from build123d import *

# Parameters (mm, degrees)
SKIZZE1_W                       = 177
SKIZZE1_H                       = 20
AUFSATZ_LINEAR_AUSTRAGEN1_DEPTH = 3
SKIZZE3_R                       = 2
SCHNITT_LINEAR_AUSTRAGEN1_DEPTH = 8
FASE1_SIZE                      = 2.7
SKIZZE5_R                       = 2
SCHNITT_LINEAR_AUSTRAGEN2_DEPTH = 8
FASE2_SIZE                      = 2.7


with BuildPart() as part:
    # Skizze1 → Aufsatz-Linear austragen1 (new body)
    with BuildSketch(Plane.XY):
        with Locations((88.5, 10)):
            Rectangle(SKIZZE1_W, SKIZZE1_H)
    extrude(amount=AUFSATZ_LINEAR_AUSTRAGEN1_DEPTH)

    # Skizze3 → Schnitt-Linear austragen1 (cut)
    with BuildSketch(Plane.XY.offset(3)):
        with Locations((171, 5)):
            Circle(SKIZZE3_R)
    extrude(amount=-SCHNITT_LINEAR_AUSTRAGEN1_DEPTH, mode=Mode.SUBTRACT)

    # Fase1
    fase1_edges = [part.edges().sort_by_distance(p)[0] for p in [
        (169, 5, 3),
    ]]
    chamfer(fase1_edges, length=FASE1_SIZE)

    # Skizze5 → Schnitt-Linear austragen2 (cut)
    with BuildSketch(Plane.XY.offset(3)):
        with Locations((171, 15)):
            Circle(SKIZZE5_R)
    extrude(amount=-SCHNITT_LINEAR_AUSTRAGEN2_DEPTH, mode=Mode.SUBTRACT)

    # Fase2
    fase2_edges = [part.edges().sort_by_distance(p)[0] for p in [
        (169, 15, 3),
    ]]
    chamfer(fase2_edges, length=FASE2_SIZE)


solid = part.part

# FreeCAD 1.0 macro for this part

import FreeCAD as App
import Part
import Sketcher
Q = App.Units.Quantity


def edges_at(feature, points):
    """Names of the edges that pass closest to the given points."""
    edges = feature.Shape.Edges
    near = lambda p: min(range(len(edges)), key=lambda i: edges[i].distToShape(Part.Vertex(*p))[0])
    return sorted({f"Edge{near(p) + 1}" for p in points})

doc = App.newDocument("Part")
body = doc.addObject("PartDesign::Body", "Body")

sketch1 = doc.addObject("Sketcher::SketchObject", "Sketch")
body.addObject(sketch1)
sketch1.AttachmentSupport = (doc.XY_Plane, [""])
sketch1.MapMode = "FlatFace"
sketch1.addGeometry([
    Part.LineSegment(App.Vector(0, 20, 0), App.Vector(0, 0, 0)),
    Part.LineSegment(App.Vector(0, 0, 0), App.Vector(177, 0, 0)),
    Part.LineSegment(App.Vector(177, 0, 0), App.Vector(177, 20, 0)),
    Part.LineSegment(App.Vector(177, 20, 0), App.Vector(0, 20, 0)),
], False)
sketch1.addConstraint([
    Sketcher.Constraint("Coincident", 0, 2, 1, 1),
    Sketcher.Constraint("Coincident", 1, 2, 2, 1),
    Sketcher.Constraint("Coincident", 2, 2, 3, 1),
    Sketcher.Constraint("Coincident", 3, 2, 0, 1),
    Sketcher.Constraint("Vertical", 0),
    Sketcher.Constraint("Horizontal", 1),
    Sketcher.Constraint("Vertical", 2),
    Sketcher.Constraint("Horizontal", 3),
    Sketcher.Constraint("Coincident", 0, 2, -1, 1),
    Sketcher.Constraint("DistanceX", 1, 1, 1, 2, Q("177 mm")),
    Sketcher.Constraint("DistanceY", 0, 2, 0, 1, Q("20 mm")),
])
pad1 = doc.addObject("PartDesign::Pad", "Pad")
body.addObject(pad1)
pad1.Profile = sketch1
pad1.Length = 3

sketch2 = doc.addObject("Sketcher::SketchObject", "Sketch001")
body.addObject(sketch2)
sketch2.AttachmentSupport = (doc.XY_Plane, [""])
sketch2.MapMode = "FlatFace"
sketch2.AttachmentOffset = App.Placement(App.Vector(0, 0, 3), App.Rotation())
sketch2.addGeometry(Part.Circle(App.Vector(171, 5, 0), App.Vector(0, 0, 1), 2), False)
sketch2.addConstraint([
    Sketcher.Constraint("Diameter", 0, Q("4 mm")),
    Sketcher.Constraint("DistanceX", -1, 1, 0, 3, Q("171 mm")),
    Sketcher.Constraint("DistanceY", -1, 1, 0, 3, Q("5 mm")),
])
pocket1 = doc.addObject("PartDesign::Pocket", "Pocket")
body.addObject(pocket1)
pocket1.Profile = sketch2
pocket1.Length = 8
doc.recompute()

chamfer = doc.addObject("PartDesign::Chamfer", "Chamfer")
body.addObject(chamfer)
chamfer.Base = (pocket1, edges_at(pocket1, [(169, 5, 3)]))
chamfer.Size = 2.7

sketch3 = doc.addObject("Sketcher::SketchObject", "Sketch002")
body.addObject(sketch3)
sketch3.AttachmentSupport = (doc.XY_Plane, [""])
sketch3.MapMode = "FlatFace"
sketch3.AttachmentOffset = App.Placement(App.Vector(0, 0, 3), App.Rotation())
sketch3.addGeometry(Part.Circle(App.Vector(171, 15, 0), App.Vector(0, 0, 1), 2), False)
sketch3.addConstraint([
    Sketcher.Constraint("Diameter", 0, Q("4 mm")),
    Sketcher.Constraint("DistanceX", -1, 1, 0, 3, Q("171 mm")),
    Sketcher.Constraint("DistanceY", -1, 1, 0, 3, Q("15 mm")),
])
pocket2 = doc.addObject("PartDesign::Pocket", "Pocket001")
body.addObject(pocket2)
pocket2.Profile = sketch3
pocket2.Length = 8
doc.recompute()

chamfer2 = doc.addObject("PartDesign::Chamfer", "Chamfer001")
body.addObject(chamfer2)
chamfer2.Base = (pocket2, edges_at(pocket2, [(169, 15, 3)]))
chamfer2.Size = 2.7

doc.recompute()
